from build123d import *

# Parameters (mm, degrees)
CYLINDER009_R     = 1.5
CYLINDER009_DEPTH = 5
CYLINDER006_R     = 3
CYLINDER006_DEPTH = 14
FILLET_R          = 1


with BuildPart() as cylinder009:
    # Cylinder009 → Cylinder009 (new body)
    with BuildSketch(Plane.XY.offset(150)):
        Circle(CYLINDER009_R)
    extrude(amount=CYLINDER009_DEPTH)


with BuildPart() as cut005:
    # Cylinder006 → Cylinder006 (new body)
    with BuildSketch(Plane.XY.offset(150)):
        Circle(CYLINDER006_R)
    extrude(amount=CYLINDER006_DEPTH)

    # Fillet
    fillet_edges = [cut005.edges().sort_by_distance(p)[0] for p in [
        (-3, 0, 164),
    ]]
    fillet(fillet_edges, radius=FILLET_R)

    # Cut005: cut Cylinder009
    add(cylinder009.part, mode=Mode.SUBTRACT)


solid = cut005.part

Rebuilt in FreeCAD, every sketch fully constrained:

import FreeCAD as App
import Part
import Sketcher

V = App.Vector
Q = App.Units.Quantity


def edges_at(feature, points):
    """Names of the edges that pass closest to the given points."""
    edges = feature.Shape.Edges
    near = lambda p: min(range(len(edges)), key=lambda i: edges[i].distToShape(Part.Vertex(*p))[0])
    return sorted({f"Edge{near(p) + 1}" for p in points})

doc = App.newDocument("Part")
body = doc.addObject("PartDesign::Body", "Body")

# Sketch on XY plane
sketch1 = body.newObject("Sketcher::SketchObject", "Sketch")
sketch1.AttachmentSupport = (doc.getObject("XY_Plane"), [""])
sketch1.MapMode = "FlatFace"
sketch1.AttachmentOffset = App.Placement(V(0, 0, 150), App.Rotation())
sketch1.addGeometry(Part.Circle(V(0, 0, 0), V(0, 0, 1), 1.5), False)
sketch1.addConstraint([
    Sketcher.Constraint("Coincident", 0, 3, -1, 1),
    Sketcher.Constraint("Diameter", 0, Q("3 mm")),
])
pad1 = body.newObject("PartDesign::Pad", "Pad")
pad1.Profile = sketch1
pad1.Length = 5
body2 = doc.addObject("PartDesign::Body", "Body001")

# Sketch on XY plane
sketch2 = body2.newObject("Sketcher::SketchObject", "Sketch001")
sketch2.AttachmentSupport = (doc.getObject("XY_Plane001"), [""])
sketch2.MapMode = "FlatFace"
sketch2.AttachmentOffset = App.Placement(V(0, 0, 150), App.Rotation())
sketch2.addGeometry(Part.Circle(V(0, 0, 0), V(0, 0, 1), 3), False)
sketch2.addConstraint([
    Sketcher.Constraint("Coincident", 0, 3, -1, 1),
    Sketcher.Constraint("Diameter", 0, Q("6 mm")),
])
pad2 = body2.newObject("PartDesign::Pad", "Pad001")
pad2.Profile = sketch2
pad2.Length = 14
doc.recompute()

fillet = body2.newObject("PartDesign::Fillet", "Fillet")
fillet.Base = (pad2, edges_at(pad2, [(-3, 0, 164)]))
fillet.Radius = 1
doc.recompute()

boolean = body2.newObject("PartDesign::Boolean", "Boolean")
boolean.Type = "Cut"
boolean.addObjects([body])

doc.recompute()
